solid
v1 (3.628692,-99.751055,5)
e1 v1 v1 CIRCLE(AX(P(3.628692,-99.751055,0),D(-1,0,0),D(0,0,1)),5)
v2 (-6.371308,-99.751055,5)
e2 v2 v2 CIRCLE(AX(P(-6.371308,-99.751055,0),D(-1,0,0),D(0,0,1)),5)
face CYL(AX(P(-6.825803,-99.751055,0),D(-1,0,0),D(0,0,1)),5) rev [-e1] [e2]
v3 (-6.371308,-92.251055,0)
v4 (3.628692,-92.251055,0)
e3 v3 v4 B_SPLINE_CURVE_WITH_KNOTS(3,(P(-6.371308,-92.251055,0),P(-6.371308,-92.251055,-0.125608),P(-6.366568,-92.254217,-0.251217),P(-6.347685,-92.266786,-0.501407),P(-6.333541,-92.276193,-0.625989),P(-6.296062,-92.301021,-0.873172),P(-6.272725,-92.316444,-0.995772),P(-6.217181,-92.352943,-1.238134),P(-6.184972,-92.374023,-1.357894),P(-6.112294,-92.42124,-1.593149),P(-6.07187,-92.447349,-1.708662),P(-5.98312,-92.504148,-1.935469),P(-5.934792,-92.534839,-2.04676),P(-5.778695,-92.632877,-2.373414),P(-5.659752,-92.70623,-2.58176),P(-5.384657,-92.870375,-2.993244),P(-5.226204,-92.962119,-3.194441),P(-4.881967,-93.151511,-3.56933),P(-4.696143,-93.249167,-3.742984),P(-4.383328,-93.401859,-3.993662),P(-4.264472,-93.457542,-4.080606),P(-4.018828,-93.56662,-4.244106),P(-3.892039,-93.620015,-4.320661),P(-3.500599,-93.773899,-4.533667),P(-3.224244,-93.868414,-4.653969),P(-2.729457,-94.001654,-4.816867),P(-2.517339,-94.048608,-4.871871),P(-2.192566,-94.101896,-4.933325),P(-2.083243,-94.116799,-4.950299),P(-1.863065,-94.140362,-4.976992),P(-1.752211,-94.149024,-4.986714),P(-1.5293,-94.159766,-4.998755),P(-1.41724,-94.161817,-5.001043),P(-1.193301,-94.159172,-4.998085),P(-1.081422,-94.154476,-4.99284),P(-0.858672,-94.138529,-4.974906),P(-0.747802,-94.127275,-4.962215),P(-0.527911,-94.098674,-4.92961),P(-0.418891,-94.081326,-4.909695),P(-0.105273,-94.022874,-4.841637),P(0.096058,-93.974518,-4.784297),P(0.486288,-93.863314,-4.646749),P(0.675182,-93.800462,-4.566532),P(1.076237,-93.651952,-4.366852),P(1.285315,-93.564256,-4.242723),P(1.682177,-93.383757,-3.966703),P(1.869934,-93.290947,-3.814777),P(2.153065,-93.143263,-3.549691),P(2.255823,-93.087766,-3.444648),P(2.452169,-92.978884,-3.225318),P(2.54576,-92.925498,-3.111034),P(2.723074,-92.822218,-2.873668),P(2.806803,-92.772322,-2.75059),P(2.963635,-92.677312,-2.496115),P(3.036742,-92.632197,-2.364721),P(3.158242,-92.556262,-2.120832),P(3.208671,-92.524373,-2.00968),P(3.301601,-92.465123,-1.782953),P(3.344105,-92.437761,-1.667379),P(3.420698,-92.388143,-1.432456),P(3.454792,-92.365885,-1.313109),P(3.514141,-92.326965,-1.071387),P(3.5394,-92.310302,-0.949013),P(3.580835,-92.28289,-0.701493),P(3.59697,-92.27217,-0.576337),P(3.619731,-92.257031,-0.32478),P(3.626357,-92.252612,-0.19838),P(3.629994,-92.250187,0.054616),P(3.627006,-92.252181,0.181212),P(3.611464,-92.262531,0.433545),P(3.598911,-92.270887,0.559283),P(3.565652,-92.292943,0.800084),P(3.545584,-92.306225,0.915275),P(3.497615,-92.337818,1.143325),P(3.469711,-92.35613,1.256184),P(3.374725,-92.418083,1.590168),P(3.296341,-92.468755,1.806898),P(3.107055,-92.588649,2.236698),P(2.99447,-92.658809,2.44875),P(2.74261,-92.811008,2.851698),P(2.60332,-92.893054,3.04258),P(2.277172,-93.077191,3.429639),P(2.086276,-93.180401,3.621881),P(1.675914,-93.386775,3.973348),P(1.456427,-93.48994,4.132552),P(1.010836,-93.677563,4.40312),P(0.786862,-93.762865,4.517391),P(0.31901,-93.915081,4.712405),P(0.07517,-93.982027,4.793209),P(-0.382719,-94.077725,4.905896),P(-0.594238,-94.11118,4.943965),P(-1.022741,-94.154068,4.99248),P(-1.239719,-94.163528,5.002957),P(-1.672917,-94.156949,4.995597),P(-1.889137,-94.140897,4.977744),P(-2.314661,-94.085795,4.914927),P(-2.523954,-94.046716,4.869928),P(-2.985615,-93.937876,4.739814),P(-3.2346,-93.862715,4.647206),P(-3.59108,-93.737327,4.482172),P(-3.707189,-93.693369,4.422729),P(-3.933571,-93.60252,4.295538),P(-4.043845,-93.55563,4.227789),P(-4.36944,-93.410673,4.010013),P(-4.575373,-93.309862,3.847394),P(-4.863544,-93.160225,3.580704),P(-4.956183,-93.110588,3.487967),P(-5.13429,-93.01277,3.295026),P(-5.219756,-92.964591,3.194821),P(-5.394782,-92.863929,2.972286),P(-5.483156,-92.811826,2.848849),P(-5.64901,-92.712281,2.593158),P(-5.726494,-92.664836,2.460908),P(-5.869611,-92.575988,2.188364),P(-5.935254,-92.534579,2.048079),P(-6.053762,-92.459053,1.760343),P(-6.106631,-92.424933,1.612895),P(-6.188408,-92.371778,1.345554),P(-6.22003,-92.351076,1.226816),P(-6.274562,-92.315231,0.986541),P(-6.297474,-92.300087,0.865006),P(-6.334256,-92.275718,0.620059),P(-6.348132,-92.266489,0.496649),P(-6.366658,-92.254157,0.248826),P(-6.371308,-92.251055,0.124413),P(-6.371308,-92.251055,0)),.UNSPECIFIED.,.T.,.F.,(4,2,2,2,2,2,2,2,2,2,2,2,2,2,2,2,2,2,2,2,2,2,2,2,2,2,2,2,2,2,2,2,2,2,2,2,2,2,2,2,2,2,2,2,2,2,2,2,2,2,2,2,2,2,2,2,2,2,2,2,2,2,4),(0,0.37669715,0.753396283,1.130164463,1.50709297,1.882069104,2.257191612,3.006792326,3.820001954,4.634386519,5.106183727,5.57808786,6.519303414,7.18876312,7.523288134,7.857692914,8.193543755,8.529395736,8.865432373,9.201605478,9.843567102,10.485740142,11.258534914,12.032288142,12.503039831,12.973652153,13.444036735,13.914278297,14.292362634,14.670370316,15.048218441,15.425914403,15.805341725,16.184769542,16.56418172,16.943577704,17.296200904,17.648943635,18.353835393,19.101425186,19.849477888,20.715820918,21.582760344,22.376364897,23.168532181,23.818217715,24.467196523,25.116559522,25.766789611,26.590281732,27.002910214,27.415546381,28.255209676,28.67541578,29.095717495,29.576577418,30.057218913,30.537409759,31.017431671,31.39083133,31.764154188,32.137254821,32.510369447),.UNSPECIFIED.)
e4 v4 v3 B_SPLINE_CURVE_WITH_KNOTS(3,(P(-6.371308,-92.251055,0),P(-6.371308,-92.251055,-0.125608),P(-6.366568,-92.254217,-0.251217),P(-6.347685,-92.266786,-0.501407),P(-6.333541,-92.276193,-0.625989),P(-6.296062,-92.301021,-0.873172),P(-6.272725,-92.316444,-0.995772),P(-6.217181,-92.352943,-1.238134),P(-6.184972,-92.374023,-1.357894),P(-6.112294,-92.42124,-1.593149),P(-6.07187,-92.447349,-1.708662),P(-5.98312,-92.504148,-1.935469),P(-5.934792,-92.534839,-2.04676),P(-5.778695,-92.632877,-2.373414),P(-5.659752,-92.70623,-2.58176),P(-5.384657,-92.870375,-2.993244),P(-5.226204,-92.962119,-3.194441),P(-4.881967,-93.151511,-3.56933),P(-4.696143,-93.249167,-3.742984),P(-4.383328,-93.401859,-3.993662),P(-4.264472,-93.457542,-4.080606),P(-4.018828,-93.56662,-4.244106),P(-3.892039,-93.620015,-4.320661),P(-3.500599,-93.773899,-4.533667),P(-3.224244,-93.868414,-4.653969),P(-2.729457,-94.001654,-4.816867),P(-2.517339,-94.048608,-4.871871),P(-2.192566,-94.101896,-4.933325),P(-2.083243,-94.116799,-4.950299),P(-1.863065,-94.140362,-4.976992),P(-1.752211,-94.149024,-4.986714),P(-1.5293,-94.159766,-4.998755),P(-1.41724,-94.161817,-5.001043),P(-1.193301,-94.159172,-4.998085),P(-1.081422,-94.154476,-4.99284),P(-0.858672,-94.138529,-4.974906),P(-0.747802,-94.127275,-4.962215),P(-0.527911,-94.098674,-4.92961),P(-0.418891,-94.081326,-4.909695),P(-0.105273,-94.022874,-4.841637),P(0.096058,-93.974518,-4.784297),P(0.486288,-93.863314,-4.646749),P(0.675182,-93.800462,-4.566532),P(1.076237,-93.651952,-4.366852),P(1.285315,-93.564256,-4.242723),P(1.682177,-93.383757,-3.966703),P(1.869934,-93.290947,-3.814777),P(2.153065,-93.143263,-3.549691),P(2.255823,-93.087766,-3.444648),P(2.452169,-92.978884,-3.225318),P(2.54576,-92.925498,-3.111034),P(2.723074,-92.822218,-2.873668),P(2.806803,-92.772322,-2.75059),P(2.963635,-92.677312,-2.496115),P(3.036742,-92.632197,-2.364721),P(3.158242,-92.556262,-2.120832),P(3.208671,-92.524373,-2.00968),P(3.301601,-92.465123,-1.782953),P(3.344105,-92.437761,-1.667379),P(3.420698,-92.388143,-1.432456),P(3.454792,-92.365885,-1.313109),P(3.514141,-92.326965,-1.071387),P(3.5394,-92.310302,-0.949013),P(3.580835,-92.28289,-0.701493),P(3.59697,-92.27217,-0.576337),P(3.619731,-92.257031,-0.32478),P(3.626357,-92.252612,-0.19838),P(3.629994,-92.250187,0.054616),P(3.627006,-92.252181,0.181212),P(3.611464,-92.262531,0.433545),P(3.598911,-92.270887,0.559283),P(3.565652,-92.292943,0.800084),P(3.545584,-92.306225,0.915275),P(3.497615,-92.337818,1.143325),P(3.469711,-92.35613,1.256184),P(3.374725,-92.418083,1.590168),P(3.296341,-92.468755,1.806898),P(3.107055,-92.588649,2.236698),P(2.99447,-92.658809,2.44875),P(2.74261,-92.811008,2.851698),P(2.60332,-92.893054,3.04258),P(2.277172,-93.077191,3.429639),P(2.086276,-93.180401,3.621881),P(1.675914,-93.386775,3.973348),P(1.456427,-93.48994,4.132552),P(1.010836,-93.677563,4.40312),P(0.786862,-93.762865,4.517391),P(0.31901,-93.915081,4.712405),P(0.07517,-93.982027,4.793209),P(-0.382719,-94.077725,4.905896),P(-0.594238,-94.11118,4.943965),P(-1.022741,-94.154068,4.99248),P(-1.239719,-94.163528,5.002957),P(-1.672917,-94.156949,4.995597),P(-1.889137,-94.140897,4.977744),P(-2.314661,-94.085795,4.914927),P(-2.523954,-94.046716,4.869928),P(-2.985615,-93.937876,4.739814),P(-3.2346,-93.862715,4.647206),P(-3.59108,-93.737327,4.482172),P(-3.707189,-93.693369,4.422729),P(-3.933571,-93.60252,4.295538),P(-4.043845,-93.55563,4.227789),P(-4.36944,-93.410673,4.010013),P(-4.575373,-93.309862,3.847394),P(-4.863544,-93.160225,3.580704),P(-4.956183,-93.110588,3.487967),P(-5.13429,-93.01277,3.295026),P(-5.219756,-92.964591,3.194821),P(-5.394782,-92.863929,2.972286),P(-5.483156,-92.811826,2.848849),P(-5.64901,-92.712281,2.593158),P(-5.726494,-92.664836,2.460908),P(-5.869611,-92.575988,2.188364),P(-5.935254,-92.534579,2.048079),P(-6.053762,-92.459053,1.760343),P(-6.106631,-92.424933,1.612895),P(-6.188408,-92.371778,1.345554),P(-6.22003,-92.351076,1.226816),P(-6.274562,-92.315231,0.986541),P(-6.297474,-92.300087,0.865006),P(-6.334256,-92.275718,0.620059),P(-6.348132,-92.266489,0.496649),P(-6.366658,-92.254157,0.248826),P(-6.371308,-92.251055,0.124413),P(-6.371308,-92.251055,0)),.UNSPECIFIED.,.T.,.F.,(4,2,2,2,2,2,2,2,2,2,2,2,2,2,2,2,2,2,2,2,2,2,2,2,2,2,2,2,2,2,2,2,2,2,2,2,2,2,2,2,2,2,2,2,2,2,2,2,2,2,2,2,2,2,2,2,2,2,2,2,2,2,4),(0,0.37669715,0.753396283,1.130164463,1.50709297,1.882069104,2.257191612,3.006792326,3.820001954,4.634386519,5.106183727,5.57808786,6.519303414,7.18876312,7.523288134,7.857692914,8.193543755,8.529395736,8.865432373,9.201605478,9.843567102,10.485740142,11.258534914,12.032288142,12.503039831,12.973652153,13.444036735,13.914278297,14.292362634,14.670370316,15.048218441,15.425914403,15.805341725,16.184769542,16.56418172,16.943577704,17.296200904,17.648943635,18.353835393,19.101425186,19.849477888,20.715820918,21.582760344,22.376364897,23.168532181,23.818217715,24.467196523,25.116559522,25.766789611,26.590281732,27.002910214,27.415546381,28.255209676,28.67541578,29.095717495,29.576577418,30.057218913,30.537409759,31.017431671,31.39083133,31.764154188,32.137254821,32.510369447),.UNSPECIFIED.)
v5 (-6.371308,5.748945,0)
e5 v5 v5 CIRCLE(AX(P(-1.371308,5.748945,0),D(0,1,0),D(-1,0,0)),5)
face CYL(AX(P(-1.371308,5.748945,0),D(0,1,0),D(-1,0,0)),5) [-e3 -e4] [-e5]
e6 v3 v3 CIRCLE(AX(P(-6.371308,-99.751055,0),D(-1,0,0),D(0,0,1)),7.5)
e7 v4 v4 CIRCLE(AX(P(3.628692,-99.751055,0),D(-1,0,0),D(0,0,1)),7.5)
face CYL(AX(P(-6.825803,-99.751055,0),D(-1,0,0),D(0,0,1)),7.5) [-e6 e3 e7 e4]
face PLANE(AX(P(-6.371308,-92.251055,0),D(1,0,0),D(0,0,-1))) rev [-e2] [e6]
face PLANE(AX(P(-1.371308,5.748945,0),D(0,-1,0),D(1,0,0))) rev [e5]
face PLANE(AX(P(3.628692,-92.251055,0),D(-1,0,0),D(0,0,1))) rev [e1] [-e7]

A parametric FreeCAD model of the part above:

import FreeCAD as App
import Part
import Sketcher
from FreeCAD import Vector
Q = App.Units.Quantity

doc = App.newDocument("Part")
body = doc.addObject("PartDesign::Body", "Body")

# Sketch on XY plane
sketch1 = doc.addObject("Sketcher::SketchObject", "Sketch")
body.addObject(sketch1)
sketch1.AttachmentSupport = (doc.XY_Plane, [""])
sketch1.MapMode = "FlatFace"
sketch1.addGeometry([
    Part.LineSegment(Vector(-1.371308, 5.748945, 0), Vector(-1.371308, -94.251055, 0)),
    Part.LineSegment(Vector(-1.371308, -94.251055, 0), Vector(3.628692, -94.251055, 0)),
    Part.LineSegment(Vector(3.628692, -94.251055, 0), Vector(3.628692, 5.748945, 0)),
    Part.LineSegment(Vector(3.628692, 5.748945, 0), Vector(-1.371308, 5.748945, 0)),
], False)
sketch1.addGeometry(Part.LineSegment(Vector(-1.371308, 5.748945, 0), Vector(-1.371308, -94.251055, 0)), True)  # axis
sketch1.addConstraint([
    Sketcher.Constraint("Coincident", 0, 2, 1, 1),
    Sketcher.Constraint("Coincident", 1, 2, 2, 1),
    Sketcher.Constraint("Coincident", 2, 2, 3, 1),
    Sketcher.Constraint("Coincident", 3, 2, 0, 1),
    Sketcher.Constraint("Vertical", 0),
    Sketcher.Constraint("Horizontal", 1),
    Sketcher.Constraint("Vertical", 2),
    Sketcher.Constraint("Horizontal", 3),
    Sketcher.Constraint("Vertical", 4),
    Sketcher.Constraint("Coincident", 4, 1, 3, 2),
    Sketcher.Constraint("Horizontal", 1, 2, 4, 2),
    Sketcher.Constraint("DistanceX", 1, 1, 1, 2, Q("5 mm")),
    Sketcher.Constraint("DistanceY", 0, 2, 0, 1, Q("100 mm")),
    Sketcher.Constraint("DistanceX", 0, 2, -1, 1, Q("1.371308 mm")),
    Sketcher.Constraint("DistanceY", 0, 2, -1, 1, Q("94.251055 mm")),
])
revolution = doc.addObject("PartDesign::Revolution", "Revolution")
body.addObject(revolution)
revolution.Profile = sketch1
revolution.ReferenceAxis = (sketch1, ["Axis0"])
revolution.Angle = 360

# Sketch on XY plane
sketch2 = doc.addObject("Sketcher::SketchObject", "Sketch001")
body.addObject(sketch2)
sketch2.AttachmentSupport = (doc.XY_Plane, [""])
sketch2.MapMode = "FlatFace"
sketch2.addGeometry([
    Part.LineSegment(Vector(-6.371308, -92.251055, 0), Vector(-6.371308, -94.751055, 0)),
    Part.LineSegment(Vector(-6.371308, -94.751055, 0), Vector(3.628692, -94.751055, 0)),
    Part.LineSegment(Vector(3.628692, -94.751055, 0), Vector(3.628692, -92.251055, 0)),
    Part.LineSegment(Vector(3.628692, -92.251055, 0), Vector(-6.371308, -92.251055, 0)),
], False)
sketch2.addGeometry(Part.LineSegment(Vector(-6.371308, -99.751055, 0), Vector(3.628692, -99.751055, 0)), True)  # axis
sketch2.addConstraint([
    Sketcher.Constraint("Coincident", 0, 2, 1, 1),
    Sketcher.Constraint("Coincident", 1, 2, 2, 1),
    Sketcher.Constraint("Coincident", 2, 2, 3, 1),
    Sketcher.Constraint("Coincident", 3, 2, 0, 1),
    Sketcher.Constraint("Vertical", 0),
    Sketcher.Constraint("Horizontal", 1),
    Sketcher.Constraint("Vertical", 2),
    Sketcher.Constraint("Horizontal", 3),
    Sketcher.Constraint("Horizontal", 4),
    Sketcher.Constraint("Vertical", 3, 2, 4, 1),
    Sketcher.Constraint("Vertical", 2, 2, 4, 2),
    Sketcher.Constraint("DistanceX", 1, 1, 1, 2, Q("10 mm")),
    Sketcher.Constraint("DistanceY", 0, 2, 0, 1, Q("2.5 mm")),
    Sketcher.Constraint("DistanceY", 4, 1, 0, 2, Q("5 mm")),
    Sketcher.Constraint("DistanceX", 0, 2, -1, 1, Q("6.371308 mm")),
    Sketcher.Constraint("DistanceY", 0, 2, -1, 1, Q("94.751055 mm")),
])
revolution2 = doc.addObject("PartDesign::Revolution", "Revolution001")
body.addObject(revolution2)
revolution2.Profile = sketch2
revolution2.ReferenceAxis = (sketch2, ["Axis0"])
revolution2.Angle = 360

doc.recompute()
